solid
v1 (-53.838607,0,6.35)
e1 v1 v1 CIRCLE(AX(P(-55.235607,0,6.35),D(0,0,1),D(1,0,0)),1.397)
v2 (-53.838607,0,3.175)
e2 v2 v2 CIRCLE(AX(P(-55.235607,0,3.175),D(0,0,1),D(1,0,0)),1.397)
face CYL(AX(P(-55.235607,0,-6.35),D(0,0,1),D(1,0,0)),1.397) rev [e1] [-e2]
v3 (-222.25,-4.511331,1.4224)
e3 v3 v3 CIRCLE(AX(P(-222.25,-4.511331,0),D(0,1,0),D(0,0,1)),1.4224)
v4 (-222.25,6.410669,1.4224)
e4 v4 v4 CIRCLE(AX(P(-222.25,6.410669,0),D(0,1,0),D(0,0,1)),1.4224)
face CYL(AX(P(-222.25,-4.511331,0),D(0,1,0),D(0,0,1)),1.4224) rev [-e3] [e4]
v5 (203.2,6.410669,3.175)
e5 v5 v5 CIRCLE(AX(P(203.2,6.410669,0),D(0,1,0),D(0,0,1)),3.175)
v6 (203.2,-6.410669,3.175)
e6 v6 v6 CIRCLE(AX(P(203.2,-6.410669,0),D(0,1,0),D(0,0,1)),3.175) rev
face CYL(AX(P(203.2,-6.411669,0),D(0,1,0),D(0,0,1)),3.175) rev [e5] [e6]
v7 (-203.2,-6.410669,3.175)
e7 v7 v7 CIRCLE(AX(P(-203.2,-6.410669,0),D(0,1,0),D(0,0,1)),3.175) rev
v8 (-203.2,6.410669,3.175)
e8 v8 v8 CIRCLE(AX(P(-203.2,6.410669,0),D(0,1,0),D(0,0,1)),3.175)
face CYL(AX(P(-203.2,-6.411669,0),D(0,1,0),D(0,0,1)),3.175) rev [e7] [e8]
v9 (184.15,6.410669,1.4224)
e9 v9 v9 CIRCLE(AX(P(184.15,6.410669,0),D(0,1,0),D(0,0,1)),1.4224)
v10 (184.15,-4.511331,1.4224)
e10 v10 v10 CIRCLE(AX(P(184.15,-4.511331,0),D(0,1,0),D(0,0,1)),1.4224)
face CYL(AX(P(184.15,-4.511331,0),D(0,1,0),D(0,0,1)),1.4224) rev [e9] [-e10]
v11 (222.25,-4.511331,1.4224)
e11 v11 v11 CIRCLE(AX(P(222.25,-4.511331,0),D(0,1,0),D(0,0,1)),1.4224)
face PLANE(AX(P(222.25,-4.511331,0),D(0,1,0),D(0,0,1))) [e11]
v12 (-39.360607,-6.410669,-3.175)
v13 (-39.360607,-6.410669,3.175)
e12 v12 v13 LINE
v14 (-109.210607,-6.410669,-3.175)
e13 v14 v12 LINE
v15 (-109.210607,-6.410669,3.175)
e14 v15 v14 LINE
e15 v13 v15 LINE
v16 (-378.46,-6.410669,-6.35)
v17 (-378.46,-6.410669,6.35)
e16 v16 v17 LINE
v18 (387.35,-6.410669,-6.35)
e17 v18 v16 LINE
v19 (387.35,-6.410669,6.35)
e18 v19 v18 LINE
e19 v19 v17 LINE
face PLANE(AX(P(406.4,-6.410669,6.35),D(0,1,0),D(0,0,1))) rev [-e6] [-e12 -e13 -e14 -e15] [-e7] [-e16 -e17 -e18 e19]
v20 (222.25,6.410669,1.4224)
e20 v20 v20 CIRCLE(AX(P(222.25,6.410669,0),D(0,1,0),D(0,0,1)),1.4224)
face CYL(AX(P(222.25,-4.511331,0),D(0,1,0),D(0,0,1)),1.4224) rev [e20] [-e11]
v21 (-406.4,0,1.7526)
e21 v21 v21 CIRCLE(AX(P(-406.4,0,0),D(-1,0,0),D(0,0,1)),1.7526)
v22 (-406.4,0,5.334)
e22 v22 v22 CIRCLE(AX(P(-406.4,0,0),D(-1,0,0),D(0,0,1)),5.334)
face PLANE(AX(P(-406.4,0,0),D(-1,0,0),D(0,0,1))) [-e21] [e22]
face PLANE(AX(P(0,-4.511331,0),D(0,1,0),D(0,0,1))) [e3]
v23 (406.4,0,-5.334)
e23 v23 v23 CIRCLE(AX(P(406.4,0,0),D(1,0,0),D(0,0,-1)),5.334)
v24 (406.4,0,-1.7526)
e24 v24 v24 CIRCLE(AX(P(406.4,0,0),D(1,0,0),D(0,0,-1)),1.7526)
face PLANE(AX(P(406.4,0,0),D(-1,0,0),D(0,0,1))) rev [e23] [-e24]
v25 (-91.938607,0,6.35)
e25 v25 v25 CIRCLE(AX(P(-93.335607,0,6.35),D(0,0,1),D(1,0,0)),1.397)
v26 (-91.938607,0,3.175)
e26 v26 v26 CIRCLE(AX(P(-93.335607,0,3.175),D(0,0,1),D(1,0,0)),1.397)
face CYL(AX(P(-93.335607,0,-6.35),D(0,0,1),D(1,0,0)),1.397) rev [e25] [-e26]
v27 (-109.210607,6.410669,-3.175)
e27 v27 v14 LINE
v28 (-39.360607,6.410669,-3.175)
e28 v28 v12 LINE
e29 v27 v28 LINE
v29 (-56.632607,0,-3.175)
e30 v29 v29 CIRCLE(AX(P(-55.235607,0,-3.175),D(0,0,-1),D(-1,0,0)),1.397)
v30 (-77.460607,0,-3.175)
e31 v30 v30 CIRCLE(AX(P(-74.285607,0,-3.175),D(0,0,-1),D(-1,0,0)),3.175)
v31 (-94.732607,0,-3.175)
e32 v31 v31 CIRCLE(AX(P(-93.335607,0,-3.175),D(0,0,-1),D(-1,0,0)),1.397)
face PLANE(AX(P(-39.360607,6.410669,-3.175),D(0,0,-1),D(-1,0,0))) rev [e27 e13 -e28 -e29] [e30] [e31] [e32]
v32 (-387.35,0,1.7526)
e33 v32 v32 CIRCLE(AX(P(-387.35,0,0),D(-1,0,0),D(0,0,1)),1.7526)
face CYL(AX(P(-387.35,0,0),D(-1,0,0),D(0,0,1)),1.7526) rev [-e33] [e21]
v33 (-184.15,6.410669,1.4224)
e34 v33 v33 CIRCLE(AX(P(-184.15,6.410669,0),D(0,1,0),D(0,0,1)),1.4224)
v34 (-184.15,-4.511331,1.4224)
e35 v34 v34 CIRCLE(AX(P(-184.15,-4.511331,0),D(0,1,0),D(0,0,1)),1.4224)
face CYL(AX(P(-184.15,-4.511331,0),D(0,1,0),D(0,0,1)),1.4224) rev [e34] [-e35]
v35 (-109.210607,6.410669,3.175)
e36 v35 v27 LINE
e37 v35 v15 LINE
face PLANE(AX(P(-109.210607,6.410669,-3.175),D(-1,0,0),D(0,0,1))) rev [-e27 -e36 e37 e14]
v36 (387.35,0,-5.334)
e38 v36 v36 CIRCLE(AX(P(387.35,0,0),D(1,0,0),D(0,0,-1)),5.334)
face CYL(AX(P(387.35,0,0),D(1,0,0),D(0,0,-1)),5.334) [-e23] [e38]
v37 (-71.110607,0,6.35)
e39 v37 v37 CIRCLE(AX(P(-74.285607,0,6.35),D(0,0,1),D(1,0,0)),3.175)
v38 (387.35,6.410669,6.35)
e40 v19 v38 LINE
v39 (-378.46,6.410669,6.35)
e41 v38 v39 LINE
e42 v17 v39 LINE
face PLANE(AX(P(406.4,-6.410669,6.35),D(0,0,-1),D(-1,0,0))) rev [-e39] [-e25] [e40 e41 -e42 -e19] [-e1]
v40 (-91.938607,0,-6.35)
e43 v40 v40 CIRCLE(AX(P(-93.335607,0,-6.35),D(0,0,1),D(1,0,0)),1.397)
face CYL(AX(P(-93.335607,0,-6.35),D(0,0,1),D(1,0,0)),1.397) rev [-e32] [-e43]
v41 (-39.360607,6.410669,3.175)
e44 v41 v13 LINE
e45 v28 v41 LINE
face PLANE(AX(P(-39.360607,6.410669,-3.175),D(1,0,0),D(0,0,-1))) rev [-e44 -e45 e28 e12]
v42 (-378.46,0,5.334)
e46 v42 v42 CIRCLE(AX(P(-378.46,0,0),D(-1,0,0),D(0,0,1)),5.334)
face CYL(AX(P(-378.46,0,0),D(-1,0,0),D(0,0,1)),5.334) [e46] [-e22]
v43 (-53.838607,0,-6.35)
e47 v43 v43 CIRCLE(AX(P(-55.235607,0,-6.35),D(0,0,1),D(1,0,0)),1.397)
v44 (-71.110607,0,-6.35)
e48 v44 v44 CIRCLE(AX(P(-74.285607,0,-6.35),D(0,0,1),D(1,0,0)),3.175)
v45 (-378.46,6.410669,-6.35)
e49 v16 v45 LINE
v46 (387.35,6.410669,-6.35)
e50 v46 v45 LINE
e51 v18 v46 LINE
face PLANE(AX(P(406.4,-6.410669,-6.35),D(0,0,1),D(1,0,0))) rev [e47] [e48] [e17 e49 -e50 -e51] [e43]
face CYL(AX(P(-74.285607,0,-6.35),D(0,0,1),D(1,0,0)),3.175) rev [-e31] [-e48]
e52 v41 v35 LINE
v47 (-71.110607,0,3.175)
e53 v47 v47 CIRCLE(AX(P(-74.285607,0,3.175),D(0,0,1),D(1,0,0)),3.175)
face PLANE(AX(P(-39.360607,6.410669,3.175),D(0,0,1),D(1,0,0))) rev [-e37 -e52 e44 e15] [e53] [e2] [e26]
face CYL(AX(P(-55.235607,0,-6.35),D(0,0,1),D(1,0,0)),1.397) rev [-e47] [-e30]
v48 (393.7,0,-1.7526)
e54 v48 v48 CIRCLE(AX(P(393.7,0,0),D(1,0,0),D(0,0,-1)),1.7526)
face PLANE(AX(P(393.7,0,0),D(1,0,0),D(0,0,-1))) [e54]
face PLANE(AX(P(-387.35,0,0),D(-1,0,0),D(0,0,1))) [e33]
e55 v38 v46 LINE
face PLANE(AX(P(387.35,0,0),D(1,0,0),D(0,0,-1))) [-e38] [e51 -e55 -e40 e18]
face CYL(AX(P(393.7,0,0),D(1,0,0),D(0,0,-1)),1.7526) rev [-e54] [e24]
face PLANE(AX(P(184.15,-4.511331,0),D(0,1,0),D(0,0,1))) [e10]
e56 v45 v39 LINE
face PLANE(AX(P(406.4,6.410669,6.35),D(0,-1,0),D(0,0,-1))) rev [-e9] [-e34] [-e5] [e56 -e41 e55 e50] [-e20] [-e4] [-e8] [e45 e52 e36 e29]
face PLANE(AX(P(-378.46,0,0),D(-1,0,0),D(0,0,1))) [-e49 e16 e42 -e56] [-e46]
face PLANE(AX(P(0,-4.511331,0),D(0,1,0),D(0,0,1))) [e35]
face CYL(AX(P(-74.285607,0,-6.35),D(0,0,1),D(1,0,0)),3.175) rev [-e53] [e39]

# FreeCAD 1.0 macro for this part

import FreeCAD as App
import Part
import Sketcher
Q = App.Units.Quantity

doc = App.newDocument("Part")
body = doc.addObject("PartDesign::Body", "Body")

# Sketch on YZ plane
sketch1 = body.newObject("Sketcher::SketchObject", "Sketch")
sketch1.AttachmentSupport = (doc.getObject("YZ_Plane"), [""])
sketch1.MapMode = "FlatFace"
sketch1.addGeometry(Part.LineSegment(App.Vector(6, 6, 0), App.Vector(-6, 6, 0)), False)
sketch1.addGeometry(Part.LineSegment(App.Vector(-6, 6, 0), App.Vector(-6, -6, 0)), False)
sketch1.addGeometry(Part.LineSegment(App.Vector(-6, -6, 0), App.Vector(6, -6, 0)), False)
sketch1.addGeometry(Part.LineSegment(App.Vector(6, -6, 0), App.Vector(6, 6, 0)), False)
sketch1.addConstraint(Sketcher.Constraint("Coincident", 0, 2, 1, 1))
sketch1.addConstraint(Sketcher.Constraint("Coincident", 1, 2, 2, 1))
sketch1.addConstraint(Sketcher.Constraint("Coincident", 2, 2, 3, 1))
sketch1.addConstraint(Sketcher.Constraint("Coincident", 3, 2, 0, 1))
sketch1.addConstraint(Sketcher.Constraint("Horizontal", 0))
sketch1.addConstraint(Sketcher.Constraint("Vertical", 1))
sketch1.addConstraint(Sketcher.Constraint("Horizontal", 2))
sketch1.addConstraint(Sketcher.Constraint("Vertical", 3))
sketch1.addConstraint(Sketcher.Constraint("Symmetric", 0, 2, 2, 2, -1, 1))
sketch1.addConstraint(Sketcher.Constraint("DistanceY", 1, 2, 1, 1, Q("0.5 in")))
sketch1.addConstraint(Sketcher.Constraint("DistanceX", 0, 2, 0, 1, Q("12.821338 mm")))
pad1 = body.newObject("PartDesign::Pad", "Pad")
pad1.Profile = sketch1
pad1.Length = Q("32 in")
pad1.Midplane = True

# Sketch on YZ plane
sketch2 = body.newObject("Sketcher::SketchObject", "Sketch001")
sketch2.AttachmentSupport = (doc.getObject("YZ_Plane"), [""])
sketch2.MapMode = "FlatFace"
sketch2.AttachmentOffset = App.Placement(App.Vector(0, 0, 16 * 25.4), App.Rotation())
sketch2.addGeometry(Part.LineSegment(App.Vector(6, 6, 0), App.Vector(-6, 6, 0)), False)
sketch2.addGeometry(Part.LineSegment(App.Vector(-6, 6, 0), App.Vector(-6, -6, 0)), False)
sketch2.addGeometry(Part.LineSegment(App.Vector(-6, -6, 0), App.Vector(6, -6, 0)), False)
sketch2.addGeometry(Part.LineSegment(App.Vector(6, -6, 0), App.Vector(6, 6, 0)), False)
sketch2.addGeometry(Part.Circle(App.Vector(0, 0, 0), App.Vector(0, 0, 1), 5), False)
sketch2.addConstraint(Sketcher.Constraint("Coincident", 0, 2, 1, 1))
sketch2.addConstraint(Sketcher.Constraint("Coincident", 1, 2, 2, 1))
sketch2.addConstraint(Sketcher.Constraint("Coincident", 2, 2, 3, 1))
sketch2.addConstraint(Sketcher.Constraint("Coincident", 3, 2, 0, 1))
sketch2.addConstraint(Sketcher.Constraint("Horizontal", 0))
sketch2.addConstraint(Sketcher.Constraint("Vertical", 1))
sketch2.addConstraint(Sketcher.Constraint("Horizontal", 2))
sketch2.addConstraint(Sketcher.Constraint("Vertical", 3))
sketch2.addConstraint(Sketcher.Constraint("Coincident", 4, 3, -1, 1))
sketch2.addConstraint(Sketcher.Constraint("Symmetric", 0, 2, 2, 2, -1, 1))
sketch2.addConstraint(Sketcher.Constraint("Diameter", 4, Q("0.42 in")))
sketch2.addConstraint(Sketcher.Constraint("DistanceY", 1, 2, 1, 1, Q("0.5 in")))
sketch2.addConstraint(Sketcher.Constraint("DistanceX", 0, 2, 0, 1, Q("12.821338 mm")))
pocket1 = body.newObject("PartDesign::Pocket", "Pocket")
pocket1.Profile = sketch2
pocket1.Length = Q("0.75 in")

# Sketch on YZ plane
sketch3 = body.newObject("Sketcher::SketchObject", "Sketch002")
sketch3.AttachmentSupport = (doc.getObject("YZ_Plane"), [""])
sketch3.MapMode = "FlatFace"
sketch3.AttachmentOffset = App.Placement(App.Vector(0, 0, -16 * 25.4), App.Rotation())
sketch3.addGeometry(Part.LineSegment(App.Vector(6, -6, 0), App.Vector(-6, -6, 0)), False)
sketch3.addGeometry(Part.LineSegment(App.Vector(-6, -6, 0), App.Vector(-6, 6, 0)), False)
sketch3.addGeometry(Part.LineSegment(App.Vector(-6, 6, 0), App.Vector(6, 6, 0)), False)
sketch3.addGeometry(Part.LineSegment(App.Vector(6, 6, 0), App.Vector(6, -6, 0)), False)
sketch3.addGeometry(Part.Circle(App.Vector(0, 0, 0), App.Vector(0, 0, 1), 5), False)
sketch3.addConstraint(Sketcher.Constraint("Coincident", 0, 2, 1, 1))
sketch3.addConstraint(Sketcher.Constraint("Coincident", 1, 2, 2, 1))
sketch3.addConstraint(Sketcher.Constraint("Coincident", 2, 2, 3, 1))
sketch3.addConstraint(Sketcher.Constraint("Coincident", 3, 2, 0, 1))
sketch3.addConstraint(Sketcher.Constraint("Horizontal", 0))
sketch3.addConstraint(Sketcher.Constraint("Vertical", 1))
sketch3.addConstraint(Sketcher.Constraint("Horizontal", 2))
sketch3.addConstraint(Sketcher.Constraint("Vertical", 3))
sketch3.addConstraint(Sketcher.Constraint("Coincident", 4, 3, -1, 1))
sketch3.addConstraint(Sketcher.Constraint("Symmetric", 0, 2, 2, 2, -1, 1))
sketch3.addConstraint(Sketcher.Constraint("Diameter", 4, Q("0.42 in")))
sketch3.addConstraint(Sketcher.Constraint("DistanceY", 1, 1, 1, 2, Q("0.5 in")))
sketch3.addConstraint(Sketcher.Constraint("DistanceX", 0, 2, 0, 1, Q("12.821338 mm")))
pocket2 = body.newObject("PartDesign::Pocket", "Pocket001")
pocket2.Profile = sketch3
pocket2.Length = Q("1.1 in")
pocket2.Reversed = True

# Sketch on YZ plane
sketch4 = body.newObject("Sketcher::SketchObject", "Sketch003")
sketch4.AttachmentSupport = (doc.getObject("YZ_Plane"), [""])
sketch4.MapMode = "FlatFace"
sketch4.AttachmentOffset = App.Placement(App.Vector(0, 0, 16 * 25.4), App.Rotation())
sketch4.addGeometry(Part.Circle(App.Vector(0, 0, 0), App.Vector(0, 0, 1), 1.8), False)
sketch4.addConstraint(Sketcher.Constraint("Coincident", 0, 3, -1, 1))
sketch4.addConstraint(Sketcher.Constraint("Diameter", 0, Q("0.138 in")))
pocket3 = body.newObject("PartDesign::Pocket", "Pocket002")
pocket3.Profile = sketch4
pocket3.Length = Q("0.5 in")

# Sketch on YZ plane
sketch5 = body.newObject("Sketcher::SketchObject", "Sketch004")
sketch5.AttachmentSupport = (doc.getObject("YZ_Plane"), [""])
sketch5.MapMode = "FlatFace"
sketch5.AttachmentOffset = App.Placement(App.Vector(0, 0, -16 * 25.4), App.Rotation())
sketch5.addGeometry(Part.Circle(App.Vector(0, 0, 0), App.Vector(0, 0, 1), 1.8), False)
sketch5.addConstraint(Sketcher.Constraint("Coincident", 0, 3, -1, 1))
sketch5.addConstraint(Sketcher.Constraint("Diameter", 0, Q("0.138 in")))
pocket4 = body.newObject("PartDesign::Pocket", "Pocket003")
pocket4.Profile = sketch5
pocket4.Length = Q("0.75 in")
pocket4.Reversed = True

# Sketch on XZ plane
sketch6 = body.newObject("Sketcher::SketchObject", "Sketch005")
sketch6.AttachmentSupport = (doc.getObject("XZ_Plane"), [""])
sketch6.MapMode = "FlatFace"
sketch6.AttachmentOffset = App.Placement(App.Vector(0, 0, -6.410669), App.Rotation())
sketch6.addGeometry(Part.Circle(App.Vector(-222.2, 0, 0), App.Vector(0, 0, 1), 1.4), False)
sketch6.addGeometry(Part.Circle(App.Vector(-184.2, 0, 0), App.Vector(0, 0, 1), 1.4), False)
sketch6.addConstraint(Sketcher.Constraint("Equal", 0, 1))
sketch6.addConstraint(Sketcher.Constraint("PointOnObject", 0, 3, -1))
sketch6.addConstraint(Sketcher.Constraint("PointOnObject", 1, 3, -1))
sketch6.addConstraint(Sketcher.Constraint("Diameter", 0, Q("0.112 in")))
sketch6.addConstraint(Sketcher.Constraint("DistanceX", 0, 3, 1, 3, Q("1.5 in")))
sketch6.addConstraint(Sketcher.Constraint("DistanceX", 0, 3, -1, 1, Q("8.75 in")))
pocket5 = body.newObject("PartDesign::Pocket", "Pocket004")
pocket5.Profile = sketch6
pocket5.Length = Q("0.43 in")
pocket5.Reversed = True

# Sketch on XZ plane
sketch7 = body.newObject("Sketcher::SketchObject", "Sketch006")
sketch7.AttachmentSupport = (doc.getObject("XZ_Plane"), [""])
sketch7.MapMode = "FlatFace"
sketch7.AttachmentOffset = App.Placement(App.Vector(0, 0, -6.410669), App.Rotation())
sketch7.addGeometry(Part.Circle(App.Vector(-203.2, 0, 0), App.Vector(0, 0, 1), 3.2), False)
sketch7.addConstraint(Sketcher.Constraint("PointOnObject", 0, 3, -1))
sketch7.addConstraint(Sketcher.Constraint("Diameter", 0, Q("0.25 in")))
sketch7.addConstraint(Sketcher.Constraint("DistanceX", 0, 3, -1, 1, Q("8 in")))
pocket6 = body.newObject("PartDesign::Pocket", "Pocket005")
pocket6.Profile = sketch7
pocket6.Type = "UpToFirst"
pocket6.Reversed = True

# Sketch on XZ plane
sketch8 = body.newObject("Sketcher::SketchObject", "Sketch007")
sketch8.AttachmentSupport = (doc.getObject("XZ_Plane"), [""])
sketch8.MapMode = "FlatFace"
sketch8.AttachmentOffset = App.Placement(App.Vector(0, 0, -6.410669), App.Rotation())
sketch8.addGeometry(Part.Circle(App.Vector(203.2, 0, 0), App.Vector(0, 0, 1), 3.2), False)
sketch8.addConstraint(Sketcher.Constraint("PointOnObject", 0, 3, -1))
sketch8.addConstraint(Sketcher.Constraint("Diameter", 0, Q("0.25 in")))
sketch8.addConstraint(Sketcher.Constraint("DistanceX", -1, 1, 0, 3, Q("8 in")))
pocket7 = body.newObject("PartDesign::Pocket", "Pocket006")
pocket7.Profile = sketch8
pocket7.Type = "UpToFirst"
pocket7.Reversed = True

# Sketch on XZ plane
sketch9 = body.newObject("Sketcher::SketchObject", "Sketch008")
sketch9.AttachmentSupport = (doc.getObject("XZ_Plane"), [""])
sketch9.MapMode = "FlatFace"
sketch9.AttachmentOffset = App.Placement(App.Vector(0, 0, -6.410669), App.Rotation())
sketch9.addGeometry(Part.Circle(App.Vector(222.2, 0, 0), App.Vector(0, 0, 1), 1.4), False)
sketch9.addGeometry(Part.Circle(App.Vector(184.2, 0, 0), App.Vector(0, 0, 1), 1.4), False)
sketch9.addConstraint(Sketcher.Constraint("Equal", 0, 1))
sketch9.addConstraint(Sketcher.Constraint("PointOnObject", 0, 3, -1))
sketch9.addConstraint(Sketcher.Constraint("PointOnObject", 1, 3, -1))
sketch9.addConstraint(Sketcher.Constraint("Diameter", 0, Q("0.112 in")))
sketch9.addConstraint(Sketcher.Constraint("DistanceX", 1, 3, 0, 3, Q("1.5 in")))
sketch9.addConstraint(Sketcher.Constraint("DistanceX", -1, 1, 0, 3, Q("8.75 in")))
pocket8 = body.newObject("PartDesign::Pocket", "Pocket007")
pocket8.Profile = sketch9
pocket8.Length = Q("0.43 in")
pocket8.Reversed = True

# Sketch on XZ plane
sketch10 = body.newObject("Sketcher::SketchObject", "Sketch009")
sketch10.AttachmentSupport = (doc.getObject("XZ_Plane"), [""])
sketch10.MapMode = "FlatFace"
sketch10.AttachmentOffset = App.Placement(App.Vector(0, 0, 6.410669), App.Rotation())
sketch10.addGeometry(Part.LineSegment(App.Vector(-39, -3, 0), App.Vector(-39, 3, 0)), False)
sketch10.addGeometry(Part.LineSegment(App.Vector(-39, 3, 0), App.Vector(-109, 3, 0)), False)
sketch10.addGeometry(Part.LineSegment(App.Vector(-109, 3, 0), App.Vector(-109, -3, 0)), False)
sketch10.addGeometry(Part.LineSegment(App.Vector(-109, -3, 0), App.Vector(-39, -3, 0)), False)
sketch10.addConstraint(Sketcher.Constraint("Coincident", 0, 2, 1, 1))
sketch10.addConstraint(Sketcher.Constraint("Coincident", 1, 2, 2, 1))
sketch10.addConstraint(Sketcher.Constraint("Coincident", 2, 2, 3, 1))
sketch10.addConstraint(Sketcher.Constraint("Coincident", 3, 2, 0, 1))
sketch10.addConstraint(Sketcher.Constraint("Vertical", 0))
sketch10.addConstraint(Sketcher.Constraint("Horizontal", 1))
sketch10.addConstraint(Sketcher.Constraint("Vertical", 2))
sketch10.addConstraint(Sketcher.Constraint("Horizontal", 3))
sketch10.addConstraint(Sketcher.Constraint("DistanceX", 1, 2, 1, 1, Q("2.75 in")))
sketch10.addConstraint(Sketcher.Constraint("DistanceY", 0, 1, 0, 2, Q("0.25 in")))
sketch10.addConstraint(Sketcher.Constraint("DistanceY", -1, 1, 0, 2, Q("0.125 in")))
sketch10.addConstraint(Sketcher.Constraint("DistanceX", 0, 2, -1, 1, Q("39.360607 mm")))
pocket9 = body.newObject("PartDesign::Pocket", "Pocket008")
pocket9.Profile = sketch10
pocket9.Type = "ThroughAll"

# Sketch on XY plane
sketch11 = body.newObject("Sketcher::SketchObject", "Sketch010")
sketch11.AttachmentSupport = (doc.getObject("XY_Plane"), [""])
sketch11.MapMode = "FlatFace"
sketch11.AttachmentOffset = App.Placement(App.Vector(0, 0, 0.25 * 25.4), App.Rotation())
sketch11.addGeometry(Part.Circle(App.Vector(-93.3, 0, 0), App.Vector(0, 0, 1), 1.4), False)
sketch11.addGeometry(Part.Circle(App.Vector(-74.3, 0, 0), App.Vector(0, 0, 1), 3.2), False)
sketch11.addGeometry(Part.Circle(App.Vector(-55.2, 0, 0), App.Vector(0, 0, 1), 1.4), False)
sketch11.addConstraint(Sketcher.Constraint("Equal", 0, 2))
sketch11.addConstraint(Sketcher.Constraint("PointOnObject", 0, 3, -1))
sketch11.addConstraint(Sketcher.Constraint("PointOnObject", 1, 3, -1))
sketch11.addConstraint(Sketcher.Constraint("PointOnObject", 2, 3, -1))
sketch11.addConstraint(Sketcher.Constraint("Diameter", 0, Q("0.11 in")))
sketch11.addConstraint(Sketcher.Constraint("Diameter", 1, Q("0.25 in")))
sketch11.addConstraint(Sketcher.Constraint("DistanceX", 0, 3, 2, 3, Q("1.5 in")))
sketch11.addConstraint(Sketcher.Constraint("DistanceX", 0, 3, 1, 3, Q("0.75 in")))
sketch11.addConstraint(Sketcher.Constraint("DistanceX", 0, 3, -1, 1, Q("93.335607 mm")))
pocket10 = body.newObject("PartDesign::Pocket", "Pocket009")
pocket10.Profile = sketch11
pocket10.Type = "ThroughAll"

doc.recompute()
